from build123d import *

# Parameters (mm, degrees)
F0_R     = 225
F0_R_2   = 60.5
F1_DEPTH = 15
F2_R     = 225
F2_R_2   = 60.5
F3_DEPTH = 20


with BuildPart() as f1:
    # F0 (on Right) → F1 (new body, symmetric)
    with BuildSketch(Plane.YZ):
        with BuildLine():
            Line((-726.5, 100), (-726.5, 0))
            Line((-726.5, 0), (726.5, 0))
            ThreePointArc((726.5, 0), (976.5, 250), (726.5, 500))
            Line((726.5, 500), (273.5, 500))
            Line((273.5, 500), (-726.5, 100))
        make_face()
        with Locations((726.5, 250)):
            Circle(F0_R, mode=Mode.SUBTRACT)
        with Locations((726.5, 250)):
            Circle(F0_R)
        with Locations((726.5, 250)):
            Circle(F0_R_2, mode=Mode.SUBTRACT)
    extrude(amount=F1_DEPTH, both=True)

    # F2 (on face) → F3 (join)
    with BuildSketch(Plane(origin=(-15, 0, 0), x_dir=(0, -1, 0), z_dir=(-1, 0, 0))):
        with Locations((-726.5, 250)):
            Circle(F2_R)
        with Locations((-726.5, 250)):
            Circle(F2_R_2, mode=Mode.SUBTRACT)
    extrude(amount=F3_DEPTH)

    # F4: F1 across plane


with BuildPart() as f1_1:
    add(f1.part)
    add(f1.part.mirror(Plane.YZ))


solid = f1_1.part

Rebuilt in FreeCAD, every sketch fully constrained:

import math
import FreeCAD as App
import Part
import Sketcher

V = App.Vector

doc = App.newDocument("Part")
body = doc.addObject("PartDesign::Body", "Body")

# Sketch on YZ plane
sketch1 = body.newObject("Sketcher::SketchObject", "Sketch")
sketch1.AttachmentSupport = (doc.getObject("YZ_Plane"), [""])
sketch1.MapMode = "FlatFace"
sketch1.addGeometry(Part.LineSegment(V(-726.5, 100, 0), V(-726.5, 0, 0)), False)
sketch1.addGeometry(Part.LineSegment(V(-726.5, 0, 0), V(726.5, 0, 0)), False)
sketch1.addGeometry(Part.ArcOfCircle(Part.Circle(V(726.5, 250, 0), V(0, 0, 1), 250), math.radians(-90), math.radians(90)), False)
sketch1.addGeometry(Part.LineSegment(V(726.5, 500, 0), V(273.5, 500, 0)), False)
sketch1.addGeometry(Part.LineSegment(V(273.5, 500, 0), V(-726.5, 100, 0)), False)
sketch1.addGeometry(Part.Circle(V(726.5, 250, 0), V(0, 0, 1), 60.5), False)
sketch1.addConstraint(Sketcher.Constraint("Coincident", 0, 2, 1, 1))
sketch1.addConstraint(Sketcher.Constraint("Tangent", 1, 2, 2, 1))
sketch1.addConstraint(Sketcher.Constraint("Tangent", 2, 2, 3, 1))
sketch1.addConstraint(Sketcher.Constraint("Coincident", 3, 2, 4, 1))
sketch1.addConstraint(Sketcher.Constraint("Coincident", 4, 2, 0, 1))
sketch1.addConstraint(Sketcher.Constraint("Vertical", 0))
sketch1.addConstraint(Sketcher.Constraint("Horizontal", 1))
sketch1.addConstraint(Sketcher.Constraint("Horizontal", 3))
sketch1.addConstraint(Sketcher.Constraint("Coincident", 5, 3, 2, 3))
sketch1.addConstraint(Sketcher.Constraint("Symmetric", 0, 2, 1, 2, -1, 1))
sketch1.addConstraint(Sketcher.Constraint("Diameter", 5, 121.0))
sketch1.addConstraint(Sketcher.Constraint("Radius", 2, 250.0))
sketch1.addConstraint(Sketcher.Constraint("DistanceX", 1, 1, 1, 2, 1453.0))
sketch1.addConstraint(Sketcher.Constraint("DistanceX", 3, 2, 3, 1, 453.0))
sketch1.addConstraint(Sketcher.Constraint("DistanceY", 0, 2, 0, 1, 100.0))
pad1 = body.newObject("PartDesign::Pad", "Pad")
pad1.Profile = sketch1
pad1.Length = 30
pad1.Midplane = True

# Sketch on YZ plane
sketch2 = body.newObject("Sketcher::SketchObject", "Sketch001")
sketch2.AttachmentSupport = (doc.getObject("YZ_Plane"), [""])
sketch2.MapMode = "FlatFace"
sketch2.AttachmentOffset = App.Placement(V(0, 0, -15), App.Rotation())
sketch2.addGeometry(Part.Circle(V(726.5, 250, 0), V(0, 0, 1), 225), False)
sketch2.addGeometry(Part.Circle(V(726.5, 250, 0), V(0, 0, 1), 60.5), False)
sketch2.addConstraint(Sketcher.Constraint("Coincident", 1, 3, 0, 3))
sketch2.addConstraint(Sketcher.Constraint("Diameter", 0, 450.0))
sketch2.addConstraint(Sketcher.Constraint("Diameter", 1, 121.0))
sketch2.addConstraint(Sketcher.Constraint("DistanceY", -1, 1, 0, 3, 250.0))
sketch2.addConstraint(Sketcher.Constraint("DistanceX", -1, 1, 0, 3, 726.5))
pad2 = body.newObject("PartDesign::Pad", "Pad001")
pad2.Profile = sketch2
pad2.Length = 20
pad2.Reversed = True
body2 = doc.addObject("PartDesign::Body", "Body001")
doc.recompute()

body2.BaseFeature = body
doc.recompute()

mirroring = doc.addObject("Part::Mirroring", "Mirroring")
mirroring.Source = body
mirroring.Base = V(0, 0, 0)
mirroring.Normal = V(1, 0, 0)
body3 = doc.addObject("PartDesign::Body", "Body002")
body3.BaseFeature = mirroring
boolean = body2.newObject("PartDesign::Boolean", "Boolean")
boolean.Type = "Fuse"
boolean.addObjects([body3])
doc.recompute()
mirroring.Visibility = False

doc.recompute()
